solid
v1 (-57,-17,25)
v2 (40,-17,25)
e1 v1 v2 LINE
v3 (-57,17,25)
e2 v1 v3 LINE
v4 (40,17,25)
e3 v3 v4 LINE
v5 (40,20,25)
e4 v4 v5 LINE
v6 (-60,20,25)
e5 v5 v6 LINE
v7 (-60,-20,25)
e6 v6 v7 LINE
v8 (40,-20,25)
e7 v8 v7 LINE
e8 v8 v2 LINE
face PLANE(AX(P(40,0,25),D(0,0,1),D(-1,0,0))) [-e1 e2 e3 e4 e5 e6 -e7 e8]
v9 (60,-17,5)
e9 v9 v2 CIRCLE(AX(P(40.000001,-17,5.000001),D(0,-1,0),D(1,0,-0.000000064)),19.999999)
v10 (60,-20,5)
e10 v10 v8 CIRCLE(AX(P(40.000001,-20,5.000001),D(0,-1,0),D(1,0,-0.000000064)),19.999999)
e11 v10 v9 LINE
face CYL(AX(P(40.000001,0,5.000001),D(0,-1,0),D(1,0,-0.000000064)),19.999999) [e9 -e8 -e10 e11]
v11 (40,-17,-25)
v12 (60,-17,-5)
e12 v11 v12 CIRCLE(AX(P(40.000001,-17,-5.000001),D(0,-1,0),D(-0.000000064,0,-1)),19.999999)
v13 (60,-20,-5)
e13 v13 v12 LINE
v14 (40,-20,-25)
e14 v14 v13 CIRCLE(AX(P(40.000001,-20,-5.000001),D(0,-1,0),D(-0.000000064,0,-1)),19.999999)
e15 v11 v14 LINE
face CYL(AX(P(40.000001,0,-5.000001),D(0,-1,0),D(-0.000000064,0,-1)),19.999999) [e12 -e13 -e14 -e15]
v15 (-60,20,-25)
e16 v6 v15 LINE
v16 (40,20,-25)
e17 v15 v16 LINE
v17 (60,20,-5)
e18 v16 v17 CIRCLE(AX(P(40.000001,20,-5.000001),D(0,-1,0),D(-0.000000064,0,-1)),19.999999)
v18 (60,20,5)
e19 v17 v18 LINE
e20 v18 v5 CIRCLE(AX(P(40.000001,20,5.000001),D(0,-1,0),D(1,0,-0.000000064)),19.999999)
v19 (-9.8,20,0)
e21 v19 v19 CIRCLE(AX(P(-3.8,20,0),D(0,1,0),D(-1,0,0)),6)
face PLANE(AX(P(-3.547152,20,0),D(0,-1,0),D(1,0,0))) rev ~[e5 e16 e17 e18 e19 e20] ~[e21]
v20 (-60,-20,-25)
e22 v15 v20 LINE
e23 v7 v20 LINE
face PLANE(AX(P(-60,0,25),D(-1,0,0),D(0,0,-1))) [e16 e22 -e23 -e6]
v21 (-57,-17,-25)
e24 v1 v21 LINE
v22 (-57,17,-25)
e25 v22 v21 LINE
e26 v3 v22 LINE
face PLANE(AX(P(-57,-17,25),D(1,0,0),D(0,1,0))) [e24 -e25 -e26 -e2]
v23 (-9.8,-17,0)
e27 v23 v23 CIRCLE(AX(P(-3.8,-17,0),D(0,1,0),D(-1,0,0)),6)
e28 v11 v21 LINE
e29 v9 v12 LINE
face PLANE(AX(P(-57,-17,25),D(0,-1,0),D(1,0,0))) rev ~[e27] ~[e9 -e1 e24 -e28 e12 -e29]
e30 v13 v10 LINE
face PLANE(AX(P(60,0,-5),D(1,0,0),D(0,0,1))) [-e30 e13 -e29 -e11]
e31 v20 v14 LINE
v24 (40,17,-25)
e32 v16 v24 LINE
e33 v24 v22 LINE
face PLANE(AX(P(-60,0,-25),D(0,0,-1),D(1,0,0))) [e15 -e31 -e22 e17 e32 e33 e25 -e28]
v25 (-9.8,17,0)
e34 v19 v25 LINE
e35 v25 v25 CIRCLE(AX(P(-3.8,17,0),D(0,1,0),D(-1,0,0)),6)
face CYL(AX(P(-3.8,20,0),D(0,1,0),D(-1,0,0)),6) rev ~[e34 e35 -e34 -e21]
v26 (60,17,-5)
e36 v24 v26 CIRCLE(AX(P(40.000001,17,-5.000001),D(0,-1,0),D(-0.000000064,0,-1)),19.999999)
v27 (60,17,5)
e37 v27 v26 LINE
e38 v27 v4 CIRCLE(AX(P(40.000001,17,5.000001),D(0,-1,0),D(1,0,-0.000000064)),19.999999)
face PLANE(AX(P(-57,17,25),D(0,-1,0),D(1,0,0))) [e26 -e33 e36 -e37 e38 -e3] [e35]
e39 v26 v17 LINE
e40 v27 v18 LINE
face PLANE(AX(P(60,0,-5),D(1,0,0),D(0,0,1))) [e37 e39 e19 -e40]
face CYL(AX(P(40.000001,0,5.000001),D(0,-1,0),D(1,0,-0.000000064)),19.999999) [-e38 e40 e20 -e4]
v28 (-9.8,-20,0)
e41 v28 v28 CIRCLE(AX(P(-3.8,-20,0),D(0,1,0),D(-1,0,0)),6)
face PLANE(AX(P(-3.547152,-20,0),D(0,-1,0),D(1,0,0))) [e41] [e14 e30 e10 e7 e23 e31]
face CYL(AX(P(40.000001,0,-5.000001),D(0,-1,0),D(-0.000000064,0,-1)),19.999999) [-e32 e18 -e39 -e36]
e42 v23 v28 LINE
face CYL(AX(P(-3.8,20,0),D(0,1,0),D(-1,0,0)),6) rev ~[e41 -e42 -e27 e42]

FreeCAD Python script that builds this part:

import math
import FreeCAD as App
import Part
import Sketcher
Q = App.Units.Quantity

doc = App.newDocument("Part")
body = doc.addObject("PartDesign::Body", "Body")

# Sketch on XZ plane
sketch1 = body.newObject("Sketcher::SketchObject", "Sketch")
sketch1.AttachmentSupport = (doc.getObject("XZ_Plane"), [""])
sketch1.MapMode = "FlatFace"
sketch1.addGeometry(Part.LineSegment(App.Vector(40, 25, 0), App.Vector(-60, 25, 0)), False)
sketch1.addGeometry(Part.LineSegment(App.Vector(-60, 25, 0), App.Vector(-60, -25, 0)), False)
sketch1.addGeometry(Part.LineSegment(App.Vector(-60, -25, 0), App.Vector(40, -25, 0)), False)
sketch1.addGeometry(Part.ArcOfCircle(Part.Circle(App.Vector(40, -5, 0), App.Vector(0, 0, 1), 20), math.radians(-90), math.radians(0)), False)
sketch1.addGeometry(Part.LineSegment(App.Vector(60, -5, 0), App.Vector(60, 5, 0)), False)
sketch1.addGeometry(Part.ArcOfCircle(Part.Circle(App.Vector(40, 5, 0), App.Vector(0, 0, 1), 20), math.radians(0), math.radians(90)), False)
sketch1.addConstraint(Sketcher.Constraint("Coincident", 0, 2, 1, 1))
sketch1.addConstraint(Sketcher.Constraint("Coincident", 1, 2, 2, 1))
sketch1.addConstraint(Sketcher.Constraint("Tangent", 2, 2, 3, 1))
sketch1.addConstraint(Sketcher.Constraint("Tangent", 3, 2, 4, 1))
sketch1.addConstraint(Sketcher.Constraint("Tangent", 4, 2, 5, 1))
sketch1.addConstraint(Sketcher.Constraint("Tangent", 5, 2, 0, 1))
sketch1.addConstraint(Sketcher.Constraint("Horizontal", 0))
sketch1.addConstraint(Sketcher.Constraint("Vertical", 1))
sketch1.addConstraint(Sketcher.Constraint("Horizontal", 2))
sketch1.addConstraint(Sketcher.Constraint("Vertical", 4))
sketch1.addConstraint(Sketcher.Constraint("Equal", 3, 5))
sketch1.addConstraint(Sketcher.Constraint("Radius", 3, Q("19.999999 mm")))
sketch1.addConstraint(Sketcher.Constraint("DistanceX", 0, 2, 0, 1, Q("100 mm")))
sketch1.addConstraint(Sketcher.Constraint("DistanceY", 1, 2, 1, 1, Q("50 mm")))
sketch1.addConstraint(Sketcher.Constraint("DistanceX", -1, 1, 3, 3, Q("40.000001 mm")))
sketch1.addConstraint(Sketcher.Constraint("DistanceY", 3, 3, -1, 1, Q("5.000001 mm")))
pad1 = body.newObject("PartDesign::Pad", "Pad")
pad1.Profile = sketch1
pad1.Length = 40
pad1.Midplane = True

# Sketch on XY plane
sketch2 = body.newObject("Sketcher::SketchObject", "Sketch001")
sketch2.AttachmentSupport = (doc.getObject("XY_Plane"), [""])
sketch2.MapMode = "FlatFace"
sketch2.AttachmentOffset = App.Placement(App.Vector(0, 0, 25), App.Rotation())
sketch2.addGeometry(Part.LineSegment(App.Vector(-57, 17, 0), App.Vector(-57, -17, 0)), False)
sketch2.addGeometry(Part.LineSegment(App.Vector(-57, -17, 0), App.Vector(83, -17, 0)), False)
sketch2.addGeometry(Part.LineSegment(App.Vector(83, -17, 0), App.Vector(83, 17, 0)), False)
sketch2.addGeometry(Part.LineSegment(App.Vector(83, 17, 0), App.Vector(-57, 17, 0)), False)
sketch2.addConstraint(Sketcher.Constraint("Coincident", 0, 2, 1, 1))
sketch2.addConstraint(Sketcher.Constraint("Coincident", 1, 2, 2, 1))
sketch2.addConstraint(Sketcher.Constraint("Coincident", 2, 2, 3, 1))
sketch2.addConstraint(Sketcher.Constraint("Coincident", 3, 2, 0, 1))
sketch2.addConstraint(Sketcher.Constraint("Vertical", 0))
sketch2.addConstraint(Sketcher.Constraint("Horizontal", 1))
sketch2.addConstraint(Sketcher.Constraint("Vertical", 2))
sketch2.addConstraint(Sketcher.Constraint("Horizontal", 3))
sketch2.addConstraint(Sketcher.Constraint("DistanceX", 1, 1, 1, 2, Q("140 mm")))
sketch2.addConstraint(Sketcher.Constraint("DistanceY", 0, 2, 0, 1, Q("34 mm")))
sketch2.addConstraint(Sketcher.Constraint("DistanceX", 0, 2, -1, 1, Q("57 mm")))
sketch2.addConstraint(Sketcher.Constraint("DistanceY", 0, 2, -1, 1, Q("17 mm")))
pocket1 = body.newObject("PartDesign::Pocket", "Pocket")
pocket1.Profile = sketch2
pocket1.Length = 60

# Sketch on XZ plane
sketch3 = body.newObject("Sketcher::SketchObject", "Sketch002")
sketch3.AttachmentSupport = (doc.getObject("XZ_Plane"), [""])
sketch3.MapMode = "FlatFace"
sketch3.AttachmentOffset = App.Placement(App.Vector(0, 0, -20), App.Rotation())
sketch3.addGeometry(Part.Circle(App.Vector(-4, 0, 0), App.Vector(0, 0, 1), 6), False)
sketch3.addConstraint(Sketcher.Constraint("PointOnObject", 0, 3, -1))
sketch3.addConstraint(Sketcher.Constraint("Diameter", 0, Q("12 mm")))
sketch3.addConstraint(Sketcher.Constraint("DistanceX", 0, 3, -1, 1, Q("3.8 mm")))
pocket2 = body.newObject("PartDesign::Pocket", "Pocket001")
pocket2.Profile = sketch3
pocket2.Length = 50
pocket2.Reversed = True

doc.recompute()
